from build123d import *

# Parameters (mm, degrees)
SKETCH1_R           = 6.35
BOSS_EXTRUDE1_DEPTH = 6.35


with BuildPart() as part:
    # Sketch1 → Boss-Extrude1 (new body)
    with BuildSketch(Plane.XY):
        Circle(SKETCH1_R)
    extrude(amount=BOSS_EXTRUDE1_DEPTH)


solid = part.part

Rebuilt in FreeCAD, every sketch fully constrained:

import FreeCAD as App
import Part
import Sketcher
from FreeCAD import Vector
Q = App.Units.Quantity

doc = App.newDocument("Part")
params = doc.addObject("Spreadsheet::Sheet", "Params")
for row, (alias, value) in enumerate([
    ("sketch1_diameter", "0.5 in"),
    ("pad1_length", "0.25 in"),
], start=1):
    params.set(f"A{row}", alias)
    params.set(f"B{row}", "=" + value)
    params.setAlias(f"B{row}", alias)

body = doc.addObject("PartDesign::Body", "Body")

# Sketch on XY plane
sketch1 = body.newObject("Sketcher::SketchObject", "Sketch")
sketch1.AttachmentSupport = (doc.getObject("XY_Plane"), [""])
sketch1.MapMode = "FlatFace"
sketch1.addGeometry(Part.Circle(Vector(0, 0, 0), Vector(0, 0, 1), 6), False)
sketch1.addConstraint(Sketcher.Constraint("Coincident", 0, 3, -1, 1))
sketch1.addConstraint(Sketcher.Constraint("Diameter", 0, Q("0.5 in")))
sketch1.setExpression("Constraints[1]", "Params.sketch1_diameter")
pad1 = body.newObject("PartDesign::Pad", "Pad")
pad1.Profile = sketch1
pad1.setExpression("Length", "Params.pad1_length")

doc.recompute()
